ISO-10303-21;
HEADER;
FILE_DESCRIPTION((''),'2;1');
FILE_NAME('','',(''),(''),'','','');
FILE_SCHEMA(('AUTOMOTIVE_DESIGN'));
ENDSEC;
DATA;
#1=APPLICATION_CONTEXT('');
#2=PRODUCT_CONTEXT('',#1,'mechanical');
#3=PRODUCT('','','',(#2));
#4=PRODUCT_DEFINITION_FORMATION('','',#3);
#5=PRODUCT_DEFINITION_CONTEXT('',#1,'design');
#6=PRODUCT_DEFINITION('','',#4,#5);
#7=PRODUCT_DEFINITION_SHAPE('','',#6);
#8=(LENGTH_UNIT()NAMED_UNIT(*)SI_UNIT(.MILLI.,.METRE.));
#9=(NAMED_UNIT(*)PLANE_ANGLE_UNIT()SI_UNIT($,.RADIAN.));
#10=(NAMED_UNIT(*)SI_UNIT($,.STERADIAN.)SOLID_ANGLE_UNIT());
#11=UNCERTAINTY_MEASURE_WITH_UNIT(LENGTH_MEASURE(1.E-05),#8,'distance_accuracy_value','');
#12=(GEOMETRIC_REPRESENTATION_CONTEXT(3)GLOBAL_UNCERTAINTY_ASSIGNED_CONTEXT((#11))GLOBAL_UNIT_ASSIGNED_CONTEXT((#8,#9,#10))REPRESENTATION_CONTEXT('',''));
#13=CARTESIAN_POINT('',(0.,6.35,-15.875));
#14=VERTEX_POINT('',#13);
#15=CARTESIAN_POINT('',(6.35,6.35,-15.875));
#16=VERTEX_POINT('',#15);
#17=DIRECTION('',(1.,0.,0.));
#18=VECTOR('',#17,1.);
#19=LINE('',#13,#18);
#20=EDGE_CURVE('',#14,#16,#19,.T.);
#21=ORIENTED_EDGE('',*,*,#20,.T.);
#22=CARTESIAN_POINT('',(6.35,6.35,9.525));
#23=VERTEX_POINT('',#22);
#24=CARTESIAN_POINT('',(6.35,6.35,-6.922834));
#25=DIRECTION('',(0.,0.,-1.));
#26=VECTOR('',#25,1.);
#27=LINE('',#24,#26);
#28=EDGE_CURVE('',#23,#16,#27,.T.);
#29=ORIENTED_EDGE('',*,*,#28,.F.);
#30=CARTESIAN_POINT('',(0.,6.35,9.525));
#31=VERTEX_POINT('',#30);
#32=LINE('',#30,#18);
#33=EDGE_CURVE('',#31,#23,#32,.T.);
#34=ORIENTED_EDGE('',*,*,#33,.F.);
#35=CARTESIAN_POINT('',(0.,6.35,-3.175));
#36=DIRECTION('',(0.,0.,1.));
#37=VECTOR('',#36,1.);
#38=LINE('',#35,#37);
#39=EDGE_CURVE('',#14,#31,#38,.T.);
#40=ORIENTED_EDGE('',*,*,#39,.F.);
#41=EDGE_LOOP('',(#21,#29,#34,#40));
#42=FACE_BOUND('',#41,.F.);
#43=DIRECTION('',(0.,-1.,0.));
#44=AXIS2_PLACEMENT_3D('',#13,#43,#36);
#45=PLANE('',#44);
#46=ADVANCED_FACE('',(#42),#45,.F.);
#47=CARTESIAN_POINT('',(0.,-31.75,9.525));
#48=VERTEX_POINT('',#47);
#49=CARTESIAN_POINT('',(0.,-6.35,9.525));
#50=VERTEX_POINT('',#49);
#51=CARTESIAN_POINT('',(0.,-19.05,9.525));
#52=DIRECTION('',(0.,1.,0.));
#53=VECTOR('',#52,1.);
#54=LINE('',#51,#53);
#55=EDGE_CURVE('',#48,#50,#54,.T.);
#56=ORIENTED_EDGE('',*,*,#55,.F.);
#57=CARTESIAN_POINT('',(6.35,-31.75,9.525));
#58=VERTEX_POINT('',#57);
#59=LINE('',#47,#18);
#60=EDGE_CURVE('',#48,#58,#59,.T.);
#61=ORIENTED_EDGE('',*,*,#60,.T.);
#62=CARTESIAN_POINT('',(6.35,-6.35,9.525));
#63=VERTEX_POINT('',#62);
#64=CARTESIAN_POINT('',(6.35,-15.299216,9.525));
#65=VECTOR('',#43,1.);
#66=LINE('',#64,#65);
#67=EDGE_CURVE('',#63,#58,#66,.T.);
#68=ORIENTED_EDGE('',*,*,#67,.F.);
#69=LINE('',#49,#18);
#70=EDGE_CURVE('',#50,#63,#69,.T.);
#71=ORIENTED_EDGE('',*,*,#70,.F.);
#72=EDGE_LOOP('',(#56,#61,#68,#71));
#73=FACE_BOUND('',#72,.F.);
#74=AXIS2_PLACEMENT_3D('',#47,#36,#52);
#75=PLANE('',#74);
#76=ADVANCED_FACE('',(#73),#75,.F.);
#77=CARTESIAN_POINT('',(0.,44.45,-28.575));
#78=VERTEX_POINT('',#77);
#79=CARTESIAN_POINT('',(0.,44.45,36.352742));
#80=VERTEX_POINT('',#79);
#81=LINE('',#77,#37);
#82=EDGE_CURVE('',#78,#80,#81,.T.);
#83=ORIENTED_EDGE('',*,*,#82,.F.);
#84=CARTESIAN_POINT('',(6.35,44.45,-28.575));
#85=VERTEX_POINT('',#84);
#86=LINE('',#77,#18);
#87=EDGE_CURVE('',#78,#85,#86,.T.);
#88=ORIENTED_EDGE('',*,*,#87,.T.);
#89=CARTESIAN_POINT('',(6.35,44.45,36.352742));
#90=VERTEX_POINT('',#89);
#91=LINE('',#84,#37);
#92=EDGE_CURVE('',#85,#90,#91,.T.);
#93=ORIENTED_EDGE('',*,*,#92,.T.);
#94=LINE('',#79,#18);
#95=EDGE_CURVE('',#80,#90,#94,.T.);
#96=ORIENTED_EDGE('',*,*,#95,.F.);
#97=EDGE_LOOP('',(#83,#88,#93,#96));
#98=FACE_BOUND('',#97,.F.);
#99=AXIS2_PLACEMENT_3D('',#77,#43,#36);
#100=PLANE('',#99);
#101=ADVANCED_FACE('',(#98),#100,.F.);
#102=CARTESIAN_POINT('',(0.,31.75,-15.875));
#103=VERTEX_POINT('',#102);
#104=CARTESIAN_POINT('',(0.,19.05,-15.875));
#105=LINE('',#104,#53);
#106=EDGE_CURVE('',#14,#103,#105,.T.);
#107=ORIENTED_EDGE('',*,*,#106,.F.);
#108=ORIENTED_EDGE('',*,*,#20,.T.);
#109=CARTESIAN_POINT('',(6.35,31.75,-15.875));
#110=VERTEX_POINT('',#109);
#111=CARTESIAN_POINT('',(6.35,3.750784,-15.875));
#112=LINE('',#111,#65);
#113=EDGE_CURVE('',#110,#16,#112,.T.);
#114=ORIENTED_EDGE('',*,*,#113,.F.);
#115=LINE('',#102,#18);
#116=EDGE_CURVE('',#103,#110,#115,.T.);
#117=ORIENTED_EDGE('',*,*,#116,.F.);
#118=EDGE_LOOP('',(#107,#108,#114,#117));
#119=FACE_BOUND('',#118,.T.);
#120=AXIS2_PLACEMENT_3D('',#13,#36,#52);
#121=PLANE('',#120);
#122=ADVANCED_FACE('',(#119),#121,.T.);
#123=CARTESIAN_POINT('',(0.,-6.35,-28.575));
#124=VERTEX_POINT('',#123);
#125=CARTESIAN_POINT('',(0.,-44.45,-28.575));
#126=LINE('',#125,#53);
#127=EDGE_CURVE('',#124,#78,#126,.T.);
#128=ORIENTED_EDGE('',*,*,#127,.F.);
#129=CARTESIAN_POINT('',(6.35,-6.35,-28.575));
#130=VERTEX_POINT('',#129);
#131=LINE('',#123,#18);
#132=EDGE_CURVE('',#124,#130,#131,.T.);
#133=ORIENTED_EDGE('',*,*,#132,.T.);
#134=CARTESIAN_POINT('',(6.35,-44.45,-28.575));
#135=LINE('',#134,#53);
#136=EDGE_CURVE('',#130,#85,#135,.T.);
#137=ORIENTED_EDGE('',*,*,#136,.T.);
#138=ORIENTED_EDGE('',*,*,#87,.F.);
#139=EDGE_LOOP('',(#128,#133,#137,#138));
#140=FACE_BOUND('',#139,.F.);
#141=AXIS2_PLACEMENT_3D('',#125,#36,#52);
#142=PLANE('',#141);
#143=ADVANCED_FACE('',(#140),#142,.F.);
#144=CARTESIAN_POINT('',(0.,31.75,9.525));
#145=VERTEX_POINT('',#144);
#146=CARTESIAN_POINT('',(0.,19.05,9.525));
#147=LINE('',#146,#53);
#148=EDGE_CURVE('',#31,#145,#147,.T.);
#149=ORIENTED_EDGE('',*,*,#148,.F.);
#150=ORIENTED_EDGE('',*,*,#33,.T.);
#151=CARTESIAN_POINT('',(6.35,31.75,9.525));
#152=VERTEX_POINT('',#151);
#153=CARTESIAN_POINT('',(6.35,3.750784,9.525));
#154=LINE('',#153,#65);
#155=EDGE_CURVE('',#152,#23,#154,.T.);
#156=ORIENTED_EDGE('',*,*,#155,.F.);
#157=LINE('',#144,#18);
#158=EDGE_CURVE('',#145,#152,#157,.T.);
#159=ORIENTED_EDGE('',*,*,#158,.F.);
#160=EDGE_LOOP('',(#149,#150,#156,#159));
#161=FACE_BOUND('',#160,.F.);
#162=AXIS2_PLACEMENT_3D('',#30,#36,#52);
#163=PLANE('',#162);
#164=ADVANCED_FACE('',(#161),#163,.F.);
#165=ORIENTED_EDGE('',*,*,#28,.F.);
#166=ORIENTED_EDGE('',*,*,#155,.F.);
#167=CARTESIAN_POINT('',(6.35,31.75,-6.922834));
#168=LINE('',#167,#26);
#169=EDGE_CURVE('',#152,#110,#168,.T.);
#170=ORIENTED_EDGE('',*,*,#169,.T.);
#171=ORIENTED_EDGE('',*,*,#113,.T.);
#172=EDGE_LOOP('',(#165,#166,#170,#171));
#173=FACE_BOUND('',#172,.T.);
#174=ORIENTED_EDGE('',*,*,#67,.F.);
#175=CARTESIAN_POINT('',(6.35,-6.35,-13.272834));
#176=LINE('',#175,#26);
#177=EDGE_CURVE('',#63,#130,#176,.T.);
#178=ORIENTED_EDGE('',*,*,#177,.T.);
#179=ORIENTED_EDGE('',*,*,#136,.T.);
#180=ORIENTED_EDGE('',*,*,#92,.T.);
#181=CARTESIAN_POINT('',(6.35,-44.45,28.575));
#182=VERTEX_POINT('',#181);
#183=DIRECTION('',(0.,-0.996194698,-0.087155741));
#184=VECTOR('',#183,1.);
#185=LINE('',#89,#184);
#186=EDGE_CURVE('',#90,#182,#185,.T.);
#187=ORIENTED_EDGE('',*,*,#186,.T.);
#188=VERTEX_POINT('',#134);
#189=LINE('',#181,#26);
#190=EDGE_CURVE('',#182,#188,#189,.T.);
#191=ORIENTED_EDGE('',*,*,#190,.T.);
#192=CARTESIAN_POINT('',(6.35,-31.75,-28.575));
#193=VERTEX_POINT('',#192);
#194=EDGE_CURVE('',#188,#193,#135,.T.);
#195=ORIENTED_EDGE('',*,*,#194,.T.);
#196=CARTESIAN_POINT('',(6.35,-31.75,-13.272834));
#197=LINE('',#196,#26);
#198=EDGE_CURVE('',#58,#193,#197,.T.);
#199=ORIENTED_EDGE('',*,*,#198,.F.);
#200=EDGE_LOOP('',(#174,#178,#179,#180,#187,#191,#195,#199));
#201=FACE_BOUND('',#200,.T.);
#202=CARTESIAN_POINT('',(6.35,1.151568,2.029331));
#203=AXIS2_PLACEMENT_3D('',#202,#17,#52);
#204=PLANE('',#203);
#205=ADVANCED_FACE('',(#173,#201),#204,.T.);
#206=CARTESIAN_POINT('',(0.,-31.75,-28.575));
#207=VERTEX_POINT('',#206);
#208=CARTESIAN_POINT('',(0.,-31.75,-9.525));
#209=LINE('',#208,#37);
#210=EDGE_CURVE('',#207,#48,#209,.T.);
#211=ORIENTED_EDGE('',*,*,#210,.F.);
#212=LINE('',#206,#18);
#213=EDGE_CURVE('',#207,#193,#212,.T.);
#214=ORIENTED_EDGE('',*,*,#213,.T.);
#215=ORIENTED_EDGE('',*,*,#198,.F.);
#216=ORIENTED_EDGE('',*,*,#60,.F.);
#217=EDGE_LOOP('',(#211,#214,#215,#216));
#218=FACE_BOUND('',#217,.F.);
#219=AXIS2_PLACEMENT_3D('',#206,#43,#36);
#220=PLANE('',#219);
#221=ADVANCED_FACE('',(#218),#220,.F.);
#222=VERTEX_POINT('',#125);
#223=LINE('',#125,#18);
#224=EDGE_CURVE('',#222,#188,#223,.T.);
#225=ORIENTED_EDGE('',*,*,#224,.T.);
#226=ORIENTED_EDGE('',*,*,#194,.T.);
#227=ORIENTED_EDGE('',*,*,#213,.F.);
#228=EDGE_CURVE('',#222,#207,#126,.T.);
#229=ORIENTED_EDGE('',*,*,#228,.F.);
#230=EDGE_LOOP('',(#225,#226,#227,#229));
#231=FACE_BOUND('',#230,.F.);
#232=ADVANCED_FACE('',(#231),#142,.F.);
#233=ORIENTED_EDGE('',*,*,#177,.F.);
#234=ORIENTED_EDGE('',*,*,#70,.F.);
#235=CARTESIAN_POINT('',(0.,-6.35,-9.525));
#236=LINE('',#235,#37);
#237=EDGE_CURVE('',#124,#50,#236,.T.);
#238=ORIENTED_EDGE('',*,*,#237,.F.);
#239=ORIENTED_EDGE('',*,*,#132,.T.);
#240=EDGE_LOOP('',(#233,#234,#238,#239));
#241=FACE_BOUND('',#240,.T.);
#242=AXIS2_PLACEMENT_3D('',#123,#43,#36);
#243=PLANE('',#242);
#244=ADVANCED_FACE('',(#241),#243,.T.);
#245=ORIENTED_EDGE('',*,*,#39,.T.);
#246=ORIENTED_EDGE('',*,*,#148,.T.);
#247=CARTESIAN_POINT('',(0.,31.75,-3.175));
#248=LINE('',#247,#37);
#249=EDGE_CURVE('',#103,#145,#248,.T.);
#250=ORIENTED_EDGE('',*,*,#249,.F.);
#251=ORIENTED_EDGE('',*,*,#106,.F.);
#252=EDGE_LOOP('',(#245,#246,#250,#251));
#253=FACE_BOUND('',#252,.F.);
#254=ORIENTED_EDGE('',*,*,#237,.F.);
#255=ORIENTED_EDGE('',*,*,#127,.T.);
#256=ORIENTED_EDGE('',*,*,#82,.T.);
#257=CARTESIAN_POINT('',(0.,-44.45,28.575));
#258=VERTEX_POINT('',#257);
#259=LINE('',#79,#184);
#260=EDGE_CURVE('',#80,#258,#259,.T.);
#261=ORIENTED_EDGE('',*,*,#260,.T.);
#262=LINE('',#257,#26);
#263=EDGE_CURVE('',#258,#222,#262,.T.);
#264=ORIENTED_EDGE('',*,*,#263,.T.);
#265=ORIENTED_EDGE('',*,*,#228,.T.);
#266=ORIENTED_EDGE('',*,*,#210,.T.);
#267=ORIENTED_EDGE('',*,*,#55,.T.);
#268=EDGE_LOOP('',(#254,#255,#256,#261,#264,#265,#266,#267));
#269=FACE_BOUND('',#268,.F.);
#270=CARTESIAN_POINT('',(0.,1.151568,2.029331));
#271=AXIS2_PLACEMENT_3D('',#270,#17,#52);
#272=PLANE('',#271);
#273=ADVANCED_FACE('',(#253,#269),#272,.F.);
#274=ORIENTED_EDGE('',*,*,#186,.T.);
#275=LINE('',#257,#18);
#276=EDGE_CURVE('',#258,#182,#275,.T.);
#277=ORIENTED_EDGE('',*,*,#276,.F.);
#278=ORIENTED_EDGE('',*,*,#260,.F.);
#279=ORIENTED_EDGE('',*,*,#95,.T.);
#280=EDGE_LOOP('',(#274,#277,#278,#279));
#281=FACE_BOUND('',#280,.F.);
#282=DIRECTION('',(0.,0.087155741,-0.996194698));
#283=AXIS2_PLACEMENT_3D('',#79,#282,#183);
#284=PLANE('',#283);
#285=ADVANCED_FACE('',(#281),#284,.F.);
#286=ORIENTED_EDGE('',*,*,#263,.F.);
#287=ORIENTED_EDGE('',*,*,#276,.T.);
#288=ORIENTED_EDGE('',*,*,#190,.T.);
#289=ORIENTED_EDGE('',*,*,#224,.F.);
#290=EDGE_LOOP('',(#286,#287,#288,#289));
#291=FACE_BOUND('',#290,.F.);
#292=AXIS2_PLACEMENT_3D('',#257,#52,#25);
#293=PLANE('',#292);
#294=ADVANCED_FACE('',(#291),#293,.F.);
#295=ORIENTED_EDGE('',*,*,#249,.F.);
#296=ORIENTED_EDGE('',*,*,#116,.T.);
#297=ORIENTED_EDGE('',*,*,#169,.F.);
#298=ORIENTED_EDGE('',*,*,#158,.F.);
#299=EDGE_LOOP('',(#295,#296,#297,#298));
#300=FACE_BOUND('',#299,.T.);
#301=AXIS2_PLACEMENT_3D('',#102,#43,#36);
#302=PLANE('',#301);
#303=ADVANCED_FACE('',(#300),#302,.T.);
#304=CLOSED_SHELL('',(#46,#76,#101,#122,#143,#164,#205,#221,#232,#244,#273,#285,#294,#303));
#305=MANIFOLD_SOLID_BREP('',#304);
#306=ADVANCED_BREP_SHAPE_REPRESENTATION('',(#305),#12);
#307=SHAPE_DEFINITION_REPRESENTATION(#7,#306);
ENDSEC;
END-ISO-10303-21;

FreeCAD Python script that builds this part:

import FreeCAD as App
import Part
import Sketcher
Q = App.Units.Quantity


def add_polygon(sketch, points):
    """Adds a closed chain of lines whose ends are joined by coincident constraints."""
    first, n = sketch.GeometryCount, len(points)
    for a, b in zip(points, points[1:] + points[:1]):
        sketch.addGeometry(Part.LineSegment(App.Vector(*a, 0), App.Vector(*b, 0)), False)
    for i in range(n):
        sketch.addConstraint(Sketcher.Constraint("Coincident", first + i, 2, first + (i + 1) % n, 1))

doc = App.newDocument("Part")
body = doc.addObject("PartDesign::Body", "Body")

# Sketch on YZ plane
sketch1 = body.newObject("Sketcher::SketchObject", "Sketch")
sketch1.AttachmentSupport = (doc.getObject("YZ_Plane"), [""])
sketch1.MapMode = "FlatFace"
add_polygon(sketch1, [(-44, 29), (-44, -29), (44, -29), (44, 36)])  # lines 0-3
sketch1.addConstraint(Sketcher.Constraint("Vertical", 0))
sketch1.addConstraint(Sketcher.Constraint("Horizontal", 1))
sketch1.addConstraint(Sketcher.Constraint("Vertical", 2))
sketch1.addConstraint(Sketcher.Constraint("Symmetric", 1, 2, 3, 2, -1, 1))
sketch1.addConstraint(Sketcher.Constraint("DistanceX", 1, 1, 1, 2, Q("3.5 in")))
sketch1.addConstraint(Sketcher.Constraint("Angle", 3, Q("-175 deg")))
sketch1.addConstraint(Sketcher.Constraint("DistanceY", 0, 2, 0, 1, Q("2.25 in")))
pad1 = body.newObject("PartDesign::Pad", "Pad")
pad1.Profile = sketch1
pad1.Length = Q("0.25 in")

# Sketch on YZ plane
sketch2 = body.newObject("Sketcher::SketchObject", "Sketch001")
sketch2.AttachmentSupport = (doc.getObject("YZ_Plane"), [""])
sketch2.MapMode = "FlatFace"
add_polygon(sketch2, [(-32, 10), (-32, -29), (-6, -29), (-6, 10)])  # lines 0-3
add_polygon(sketch2, [(6, 10), (6, -16), (32, -16), (32, 10)])  # lines 4-7
sketch2.addConstraint(Sketcher.Constraint("Vertical", 0))
sketch2.addConstraint(Sketcher.Constraint("Horizontal", 1))
sketch2.addConstraint(Sketcher.Constraint("Vertical", 2))
sketch2.addConstraint(Sketcher.Constraint("Horizontal", 3))
sketch2.addConstraint(Sketcher.Constraint("Vertical", 4))
sketch2.addConstraint(Sketcher.Constraint("Horizontal", 5))
sketch2.addConstraint(Sketcher.Constraint("Vertical", 6))
sketch2.addConstraint(Sketcher.Constraint("Horizontal", 7))
sketch2.addConstraint(Sketcher.Constraint("Symmetric", 3, 2, 6, 2, -2))
sketch2.addConstraint(Sketcher.Constraint("Equal", 3, 5))
sketch2.addConstraint(Sketcher.Constraint("Equal", 7, 4))
sketch2.addConstraint(Sketcher.Constraint("DistanceX", 1, 1, 1, 2, Q("1 in")))
sketch2.addConstraint(Sketcher.Constraint("DistanceY", 0, 2, 0, 1, Q("1.5 in")))
sketch2.addConstraint(Sketcher.Constraint("DistanceX", 1, 2, 4, 2, Q("0.5 in")))
sketch2.addConstraint(Sketcher.Constraint("DistanceY", 0, 2, -1, 1, Q("1.125 in")))
pocket1 = body.newObject("PartDesign::Pocket", "Pocket")
pocket1.Profile = sketch2
pocket1.Type = "ThroughAll"
pocket1.Reversed = True

doc.recompute()
